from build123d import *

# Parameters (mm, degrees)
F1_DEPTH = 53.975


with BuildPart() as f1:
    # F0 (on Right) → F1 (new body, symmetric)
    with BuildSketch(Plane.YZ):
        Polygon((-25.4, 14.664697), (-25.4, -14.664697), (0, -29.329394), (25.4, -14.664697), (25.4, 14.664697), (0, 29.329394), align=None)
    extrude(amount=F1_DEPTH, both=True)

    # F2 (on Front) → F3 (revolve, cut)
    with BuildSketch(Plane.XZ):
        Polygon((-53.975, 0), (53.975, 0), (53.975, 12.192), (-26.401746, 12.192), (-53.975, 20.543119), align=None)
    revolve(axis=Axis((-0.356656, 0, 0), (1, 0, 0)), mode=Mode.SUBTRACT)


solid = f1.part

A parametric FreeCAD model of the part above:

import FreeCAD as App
import Part
import Sketcher
Q = App.Units.Quantity

doc = App.newDocument("Part")
body = doc.addObject("PartDesign::Body", "Body")

# Sketch on YZ plane
sketch1 = body.newObject("Sketcher::SketchObject", "Sketch")
sketch1.AttachmentSupport = (doc.getObject("YZ_Plane"), [""])
sketch1.MapMode = "FlatFace"
sketch1.addGeometry([
    Part.LineSegment(App.Vector(-25, 15, 0), App.Vector(-25, -15, 0)),  # 0
    Part.LineSegment(App.Vector(-25, -15, 0), App.Vector(0, -29, 0)),  # 1
    Part.LineSegment(App.Vector(0, -29, 0), App.Vector(25, -15, 0)),  # 2
    Part.LineSegment(App.Vector(25, -15, 0), App.Vector(25, 15, 0)),  # 3
    Part.LineSegment(App.Vector(25, 15, 0), App.Vector(0, 29, 0)),  # 4
    Part.LineSegment(App.Vector(0, 29, 0), App.Vector(-25, 15, 0)),  # 5
], False)
sketch1.addConstraint([
    Sketcher.Constraint("Coincident", 0, 2, 1, 1),
    Sketcher.Constraint("Coincident", 1, 2, 2, 1),
    Sketcher.Constraint("Coincident", 2, 2, 3, 1),
    Sketcher.Constraint("Coincident", 3, 2, 4, 1),
    Sketcher.Constraint("Coincident", 4, 2, 5, 1),
    Sketcher.Constraint("Coincident", 5, 2, 0, 1),
    Sketcher.Constraint("Vertical", 0),
    Sketcher.Constraint("Vertical", 3),
    Sketcher.Constraint("Symmetric", 0, 2, 3, 2, -1, 1),
    Sketcher.Constraint("Symmetric", 1, 2, 4, 2, -1, 1),
    Sketcher.Constraint("PointOnObject", 1, 2, -2),
    Sketcher.Constraint("Parallel", 2, 5),
    Sketcher.Constraint("Horizontal", 0, 2, 2, 2),
    Sketcher.Constraint("DistanceX", 0, 2, -1, 1, Q("1 in")),
    Sketcher.Constraint("Angle", 1, Q("-30 deg")),
    Sketcher.Constraint("DistanceY", 0, 2, 0, 1, 29.329394),
])
pad1 = body.newObject("PartDesign::Pad", "Pad")
pad1.Profile = sketch1
pad1.Length = Q("4.25 in")
pad1.Midplane = True

# Sketch on XZ plane
sketch2 = body.newObject("Sketcher::SketchObject", "Sketch001")
sketch2.AttachmentSupport = (doc.getObject("XZ_Plane"), [""])
sketch2.MapMode = "FlatFace"
sketch2.addGeometry([
    Part.LineSegment(App.Vector(-54, 0, 0), App.Vector(54, 0, 0)),  # 0
    Part.LineSegment(App.Vector(54, 0, 0), App.Vector(54, 12, 0)),  # 1
    Part.LineSegment(App.Vector(54, 12, 0), App.Vector(-26, 12, 0)),  # 2
    Part.LineSegment(App.Vector(-26, 12, 0), App.Vector(-54, 21, 0)),  # 3
    Part.LineSegment(App.Vector(-54, 21, 0), App.Vector(-54, 0, 0)),  # 4
], False)
sketch2.addConstraint([
    Sketcher.Constraint("Coincident", 0, 2, 1, 1),
    Sketcher.Constraint("Coincident", 1, 2, 2, 1),
    Sketcher.Constraint("Coincident", 2, 2, 3, 1),
    Sketcher.Constraint("Coincident", 3, 2, 4, 1),
    Sketcher.Constraint("Coincident", 4, 2, 0, 1),
    Sketcher.Constraint("Horizontal", 0),
    Sketcher.Constraint("Vertical", 1),
    Sketcher.Constraint("Horizontal", 2),
    Sketcher.Constraint("Vertical", 4),
    Sketcher.Constraint("Symmetric", 0, 2, 4, 2, -1, 1),
    Sketcher.Constraint("DistanceX", 0, 1, 0, 2, Q("4.25 in")),
    Sketcher.Constraint("DistanceY", 1, 1, 1, 2, Q("0.48 in")),
    Sketcher.Constraint("Angle", 3, Q("163.149999 deg")),
    Sketcher.Constraint("DistanceY", 4, 2, 4, 1, 20.543119),
])
groove = body.newObject("PartDesign::Groove", "Groove")
groove.Profile = sketch2
groove.ReferenceAxis = (sketch2, ["H_Axis"])
groove.Angle = 360

doc.recompute()
